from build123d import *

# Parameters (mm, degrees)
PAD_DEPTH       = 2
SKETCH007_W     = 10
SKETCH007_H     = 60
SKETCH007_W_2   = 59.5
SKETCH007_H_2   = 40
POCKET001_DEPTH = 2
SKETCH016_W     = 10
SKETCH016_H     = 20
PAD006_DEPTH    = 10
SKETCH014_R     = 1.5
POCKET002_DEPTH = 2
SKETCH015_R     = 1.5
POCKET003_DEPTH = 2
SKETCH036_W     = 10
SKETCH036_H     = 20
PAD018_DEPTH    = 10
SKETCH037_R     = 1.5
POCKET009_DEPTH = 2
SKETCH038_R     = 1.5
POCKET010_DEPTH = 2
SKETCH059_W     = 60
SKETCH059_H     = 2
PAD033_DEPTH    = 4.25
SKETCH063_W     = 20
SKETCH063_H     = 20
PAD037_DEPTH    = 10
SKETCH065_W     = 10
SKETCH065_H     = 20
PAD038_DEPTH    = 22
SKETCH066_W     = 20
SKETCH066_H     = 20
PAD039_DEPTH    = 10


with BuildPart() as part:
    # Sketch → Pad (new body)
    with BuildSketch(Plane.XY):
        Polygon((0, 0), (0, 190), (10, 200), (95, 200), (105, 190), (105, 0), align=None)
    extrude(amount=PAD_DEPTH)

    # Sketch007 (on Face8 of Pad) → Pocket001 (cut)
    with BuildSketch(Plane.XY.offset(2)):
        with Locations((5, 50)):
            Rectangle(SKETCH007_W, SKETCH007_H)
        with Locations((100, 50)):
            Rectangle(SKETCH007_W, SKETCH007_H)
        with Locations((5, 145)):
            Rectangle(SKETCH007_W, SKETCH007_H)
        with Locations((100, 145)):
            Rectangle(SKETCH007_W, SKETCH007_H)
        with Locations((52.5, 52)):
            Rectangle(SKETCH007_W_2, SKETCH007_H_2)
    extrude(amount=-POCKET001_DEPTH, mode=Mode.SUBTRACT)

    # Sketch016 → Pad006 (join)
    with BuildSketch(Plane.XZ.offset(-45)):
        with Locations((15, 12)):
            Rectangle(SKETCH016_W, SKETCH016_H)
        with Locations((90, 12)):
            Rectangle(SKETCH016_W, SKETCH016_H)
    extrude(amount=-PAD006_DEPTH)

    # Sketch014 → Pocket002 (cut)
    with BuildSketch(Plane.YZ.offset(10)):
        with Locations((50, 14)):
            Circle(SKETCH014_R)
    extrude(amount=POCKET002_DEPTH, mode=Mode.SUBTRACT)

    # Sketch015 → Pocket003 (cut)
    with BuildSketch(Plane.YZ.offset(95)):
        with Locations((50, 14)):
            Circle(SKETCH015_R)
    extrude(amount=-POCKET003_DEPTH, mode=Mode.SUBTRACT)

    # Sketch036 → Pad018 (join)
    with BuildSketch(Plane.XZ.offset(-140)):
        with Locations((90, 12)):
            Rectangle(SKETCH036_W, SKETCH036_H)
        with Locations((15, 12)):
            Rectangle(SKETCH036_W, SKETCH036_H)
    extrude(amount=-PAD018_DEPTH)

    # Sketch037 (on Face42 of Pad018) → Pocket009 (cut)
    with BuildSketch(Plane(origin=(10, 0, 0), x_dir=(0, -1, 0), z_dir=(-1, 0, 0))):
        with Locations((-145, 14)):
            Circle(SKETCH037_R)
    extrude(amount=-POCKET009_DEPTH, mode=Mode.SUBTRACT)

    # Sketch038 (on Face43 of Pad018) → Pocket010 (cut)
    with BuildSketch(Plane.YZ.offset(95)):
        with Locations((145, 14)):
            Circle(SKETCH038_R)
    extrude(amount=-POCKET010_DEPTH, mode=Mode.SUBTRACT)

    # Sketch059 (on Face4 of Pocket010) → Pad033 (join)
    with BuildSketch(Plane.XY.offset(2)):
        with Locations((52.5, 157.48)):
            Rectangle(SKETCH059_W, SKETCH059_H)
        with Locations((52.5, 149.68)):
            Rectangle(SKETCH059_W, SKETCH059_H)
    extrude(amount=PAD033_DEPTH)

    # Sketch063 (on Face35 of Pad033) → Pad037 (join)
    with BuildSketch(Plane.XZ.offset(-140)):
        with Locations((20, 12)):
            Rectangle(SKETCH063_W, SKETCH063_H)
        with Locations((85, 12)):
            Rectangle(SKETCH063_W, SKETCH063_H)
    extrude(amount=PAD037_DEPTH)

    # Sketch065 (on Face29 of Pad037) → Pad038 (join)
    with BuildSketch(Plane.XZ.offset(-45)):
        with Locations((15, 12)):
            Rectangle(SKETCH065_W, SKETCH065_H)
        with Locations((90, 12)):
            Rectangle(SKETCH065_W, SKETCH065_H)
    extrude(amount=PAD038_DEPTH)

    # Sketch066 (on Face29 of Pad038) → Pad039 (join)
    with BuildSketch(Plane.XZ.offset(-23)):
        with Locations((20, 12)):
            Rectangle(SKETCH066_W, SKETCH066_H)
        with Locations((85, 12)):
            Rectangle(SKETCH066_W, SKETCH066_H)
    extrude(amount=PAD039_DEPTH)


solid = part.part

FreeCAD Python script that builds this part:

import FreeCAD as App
import Part
import Sketcher

V = App.Vector


def add_polygon(sketch, points):
    """Adds a closed chain of lines whose ends are joined by coincident constraints."""
    first, n = sketch.GeometryCount, len(points)
    for a, b in zip(points, points[1:] + points[:1]):
        sketch.addGeometry(Part.LineSegment(App.Vector(*a, 0), App.Vector(*b, 0)), False)
    for i in range(n):
        sketch.addConstraint(Sketcher.Constraint("Coincident", first + i, 2, first + (i + 1) % n, 1))

doc = App.newDocument("Part")
body = doc.addObject("PartDesign::Body", "Body")

# Sketch on XY plane
sketch1 = body.newObject("Sketcher::SketchObject", "Sketch")
sketch1.AttachmentSupport = (doc.getObject("XY_Plane"), [""])
sketch1.MapMode = "FlatFace"
add_polygon(sketch1, [(0, 190), (0, 0), (105, 0), (105, 190), (95, 200), (10, 200)])  # lines 0-5
sketch1.addConstraint(Sketcher.Constraint("Vertical", 0))
sketch1.addConstraint(Sketcher.Constraint("Horizontal", 1))
sketch1.addConstraint(Sketcher.Constraint("Vertical", 2))
sketch1.addConstraint(Sketcher.Constraint("Horizontal", 4))
sketch1.addConstraint(Sketcher.Constraint("Coincident", 0, 2, -1, 1))
sketch1.addConstraint(Sketcher.Constraint("Perpendicular", 3, 5))
sketch1.addConstraint(Sketcher.Constraint("Horizontal", 2, 2, 5, 2))
sketch1.addConstraint(Sketcher.Constraint("Equal", 3, 5))
sketch1.addConstraint(Sketcher.Constraint("DistanceX", 1, 1, 1, 2, 105.0))
sketch1.addConstraint(Sketcher.Constraint("DistanceX", 4, 2, 4, 1, 85.0))
sketch1.addConstraint(Sketcher.Constraint("DistanceY", 0, 2, 0, 1, 190.0))
pad1 = body.newObject("PartDesign::Pad", "Pad")
pad1.Profile = sketch1
pad1.Length = 2

# Sketch on XY plane
sketch2 = body.newObject("Sketcher::SketchObject", "Sketch001")
sketch2.AttachmentSupport = (doc.getObject("XY_Plane"), [""])
sketch2.MapMode = "FlatFace"
sketch2.AttachmentOffset = App.Placement(V(0, 0, 2), App.Rotation())
add_polygon(sketch2, [(0, 80), (0, 20), (10, 20), (10, 80)])  # lines 0-3
add_polygon(sketch2, [(95, 80), (95, 20), (105, 20), (105, 80)])  # lines 4-7
add_polygon(sketch2, [(0, 175), (0, 115), (10, 115), (10, 175)])  # lines 8-11
add_polygon(sketch2, [(95, 175), (95, 115), (105, 115), (105, 175)])  # lines 12-15
add_polygon(sketch2, [(23, 72), (23, 32), (82, 32), (82, 72)])  # lines 16-19
sketch2.addConstraint(Sketcher.Constraint("Vertical", 0))
sketch2.addConstraint(Sketcher.Constraint("Horizontal", 1))
sketch2.addConstraint(Sketcher.Constraint("Vertical", 2))
sketch2.addConstraint(Sketcher.Constraint("Horizontal", 3))
sketch2.addConstraint(Sketcher.Constraint("Vertical", 4))
sketch2.addConstraint(Sketcher.Constraint("Horizontal", 5))
sketch2.addConstraint(Sketcher.Constraint("Vertical", 6))
sketch2.addConstraint(Sketcher.Constraint("Horizontal", 7))
sketch2.addConstraint(Sketcher.Constraint("Vertical", 8))
sketch2.addConstraint(Sketcher.Constraint("Horizontal", 9))
sketch2.addConstraint(Sketcher.Constraint("Vertical", 10))
sketch2.addConstraint(Sketcher.Constraint("Horizontal", 11))
sketch2.addConstraint(Sketcher.Constraint("Vertical", 12))
sketch2.addConstraint(Sketcher.Constraint("Horizontal", 13))
sketch2.addConstraint(Sketcher.Constraint("Vertical", 14))
sketch2.addConstraint(Sketcher.Constraint("Horizontal", 15))
sketch2.addConstraint(Sketcher.Constraint("Vertical", 16))
sketch2.addConstraint(Sketcher.Constraint("Horizontal", 17))
sketch2.addConstraint(Sketcher.Constraint("Vertical", 18))
sketch2.addConstraint(Sketcher.Constraint("Horizontal", 19))
sketch2.addConstraint(Sketcher.Constraint("PointOnObject", 0, 2, -2))
sketch2.addConstraint(Sketcher.Constraint("PointOnObject", 8, 2, -2))
sketch2.addConstraint(Sketcher.Constraint("Horizontal", 1, 2, 4, 2))
sketch2.addConstraint(Sketcher.Constraint("Horizontal", 3, 2, 6, 2))
sketch2.addConstraint(Sketcher.Constraint("Horizontal", 9, 2, 12, 2))
sketch2.addConstraint(Sketcher.Constraint("Horizontal", 11, 2, 14, 2))
sketch2.addConstraint(Sketcher.Constraint("Vertical", 2, 2, 9, 2))
sketch2.addConstraint(Sketcher.Constraint("Vertical", 7, 2, 12, 2))
sketch2.addConstraint(Sketcher.Constraint("Vertical", 6, 2, 13, 2))
sketch2.addConstraint(Sketcher.Constraint("Equal", 3, 5))
sketch2.addConstraint(Sketcher.Constraint("Equal", 6, 8))
sketch2.addConstraint(Sketcher.Constraint("DistanceX", 1, 1, 1, 2, 10.0))
sketch2.addConstraint(Sketcher.Constraint("DistanceY", 0, 2, 0, 1, 60.0))
sketch2.addConstraint(Sketcher.Constraint("DistanceY", 16, 2, 16, 1, 40.0))
sketch2.addConstraint(Sketcher.Constraint("DistanceX", 17, 1, 17, 2, 59.5))
sketch2.addConstraint(Sketcher.Constraint("DistanceY", -1, 1, 0, 2, 20.0))
sketch2.addConstraint(Sketcher.Constraint("DistanceX", -1, 1, 4, 2, 95.0))
sketch2.addConstraint(Sketcher.Constraint("DistanceY", -1, 1, 8, 2, 115.0))
sketch2.addConstraint(Sketcher.Constraint("DistanceY", -1, 1, 16, 2, 32.0))
sketch2.addConstraint(Sketcher.Constraint("DistanceX", -1, 1, 16, 2, 22.75))
pocket1 = body.newObject("PartDesign::Pocket", "Pocket")
pocket1.Profile = sketch2
pocket1.Length = 2

# Sketch on XZ plane
sketch3 = body.newObject("Sketcher::SketchObject", "Sketch002")
sketch3.AttachmentSupport = (doc.getObject("XZ_Plane"), [""])
sketch3.MapMode = "FlatFace"
sketch3.AttachmentOffset = App.Placement(V(0, 0, -45), App.Rotation())
add_polygon(sketch3, [(10, 22), (10, 2), (20, 2), (20, 22)])  # lines 0-3
add_polygon(sketch3, [(85, 22), (85, 2), (95, 2), (95, 22)])  # lines 4-7
sketch3.addConstraint(Sketcher.Constraint("Vertical", 0))
sketch3.addConstraint(Sketcher.Constraint("Horizontal", 1))
sketch3.addConstraint(Sketcher.Constraint("Vertical", 2))
sketch3.addConstraint(Sketcher.Constraint("Horizontal", 3))
sketch3.addConstraint(Sketcher.Constraint("Vertical", 4))
sketch3.addConstraint(Sketcher.Constraint("Horizontal", 5))
sketch3.addConstraint(Sketcher.Constraint("Vertical", 6))
sketch3.addConstraint(Sketcher.Constraint("Horizontal", 7))
sketch3.addConstraint(Sketcher.Constraint("Horizontal", 1, 2, 4, 2))
sketch3.addConstraint(Sketcher.Constraint("Horizontal", 3, 2, 6, 2))
sketch3.addConstraint(Sketcher.Constraint("Equal", 3, 5))
sketch3.addConstraint(Sketcher.Constraint("DistanceX", 1, 1, 1, 2, 10.0))
sketch3.addConstraint(Sketcher.Constraint("DistanceY", 0, 2, 0, 1, 20.0))
sketch3.addConstraint(Sketcher.Constraint("DistanceX", -1, 1, 0, 2, 10.0))
sketch3.addConstraint(Sketcher.Constraint("DistanceY", -1, 1, 0, 2, 2.0))
sketch3.addConstraint(Sketcher.Constraint("DistanceX", -1, 1, 4, 2, 85.0))
pad2 = body.newObject("PartDesign::Pad", "Pad001")
pad2.Profile = sketch3
pad2.Length = 10
pad2.Reversed = True

# Sketch on YZ plane
sketch4 = body.newObject("Sketcher::SketchObject", "Sketch003")
sketch4.AttachmentSupport = (doc.getObject("YZ_Plane"), [""])
sketch4.MapMode = "FlatFace"
sketch4.AttachmentOffset = App.Placement(V(0, 0, 10), App.Rotation())
sketch4.addGeometry(Part.Circle(V(50, 14, 0), V(0, 0, 1), 1.5), False)
sketch4.addConstraint(Sketcher.Constraint("Diameter", 0, 3.0))
sketch4.addConstraint(Sketcher.Constraint("DistanceX", -1, 1, 0, 3, 50.0))
sketch4.addConstraint(Sketcher.Constraint("DistanceY", -1, 1, 0, 3, 14.0))
pocket2 = body.newObject("PartDesign::Pocket", "Pocket001")
pocket2.Profile = sketch4
pocket2.Length = 2
pocket2.Reversed = True

# Sketch on YZ plane
sketch5 = body.newObject("Sketcher::SketchObject", "Sketch004")
sketch5.AttachmentSupport = (doc.getObject("YZ_Plane"), [""])
sketch5.MapMode = "FlatFace"
sketch5.AttachmentOffset = App.Placement(V(0, 0, 95), App.Rotation())
sketch5.addGeometry(Part.Circle(V(50, 14, 0), V(0, 0, 1), 1.5), False)
sketch5.addConstraint(Sketcher.Constraint("Diameter", 0, 3.0))
sketch5.addConstraint(Sketcher.Constraint("DistanceX", -1, 1, 0, 3, 50.0))
sketch5.addConstraint(Sketcher.Constraint("DistanceY", -1, 1, 0, 3, 14.0))
pocket3 = body.newObject("PartDesign::Pocket", "Pocket002")
pocket3.Profile = sketch5
pocket3.Length = 2

# Sketch on XZ plane
sketch6 = body.newObject("Sketcher::SketchObject", "Sketch005")
sketch6.AttachmentSupport = (doc.getObject("XZ_Plane"), [""])
sketch6.MapMode = "FlatFace"
sketch6.AttachmentOffset = App.Placement(V(0, 0, -140), App.Rotation())
add_polygon(sketch6, [(85, 22), (85, 2), (95, 2), (95, 22)])  # lines 0-3
add_polygon(sketch6, [(10, 22), (10, 2), (20, 2), (20, 22)])  # lines 4-7
sketch6.addConstraint(Sketcher.Constraint("Vertical", 0))
sketch6.addConstraint(Sketcher.Constraint("Horizontal", 1))
sketch6.addConstraint(Sketcher.Constraint("Vertical", 2))
sketch6.addConstraint(Sketcher.Constraint("Horizontal", 3))
sketch6.addConstraint(Sketcher.Constraint("Vertical", 4))
sketch6.addConstraint(Sketcher.Constraint("Horizontal", 5))
sketch6.addConstraint(Sketcher.Constraint("Vertical", 6))
sketch6.addConstraint(Sketcher.Constraint("Horizontal", 7))
sketch6.addConstraint(Sketcher.Constraint("Horizontal", 1, 2, 4, 2))
sketch6.addConstraint(Sketcher.Constraint("Horizontal", 3, 2, 6, 2))
sketch6.addConstraint(Sketcher.Constraint("Equal", 3, 5))
sketch6.addConstraint(Sketcher.Constraint("DistanceX", 1, 1, 1, 2, 10.0))
sketch6.addConstraint(Sketcher.Constraint("DistanceY", 0, 2, 0, 1, 20.0))
sketch6.addConstraint(Sketcher.Constraint("DistanceX", -1, 1, 0, 2, 85.0))
sketch6.addConstraint(Sketcher.Constraint("DistanceY", -1, 1, 0, 2, 2.0))
sketch6.addConstraint(Sketcher.Constraint("DistanceX", -1, 1, 4, 2, 10.0))
pad3 = body.newObject("PartDesign::Pad", "Pad002")
pad3.Profile = sketch6
pad3.Length = 10
pad3.Reversed = True

# Sketch on YZ plane
sketch7 = body.newObject("Sketcher::SketchObject", "Sketch006")
sketch7.AttachmentSupport = (doc.getObject("YZ_Plane"), [""])
sketch7.MapMode = "FlatFace"
sketch7.AttachmentOffset = App.Placement(V(0, 0, 10), App.Rotation())
sketch7.addGeometry(Part.Circle(V(145, 14, 0), V(0, 0, 1), 1.5), False)
sketch7.addConstraint(Sketcher.Constraint("Diameter", 0, 3.0))
sketch7.addConstraint(Sketcher.Constraint("DistanceX", -1, 1, 0, 3, 145.0))
sketch7.addConstraint(Sketcher.Constraint("DistanceY", -1, 1, 0, 3, 14.0))
pocket4 = body.newObject("PartDesign::Pocket", "Pocket003")
pocket4.Profile = sketch7
pocket4.Length = 2
pocket4.Reversed = True

# Sketch on YZ plane
sketch8 = body.newObject("Sketcher::SketchObject", "Sketch007")
sketch8.AttachmentSupport = (doc.getObject("YZ_Plane"), [""])
sketch8.MapMode = "FlatFace"
sketch8.AttachmentOffset = App.Placement(V(0, 0, 95), App.Rotation())
sketch8.addGeometry(Part.Circle(V(145, 14, 0), V(0, 0, 1), 1.5), False)
sketch8.addConstraint(Sketcher.Constraint("Diameter", 0, 3.0))
sketch8.addConstraint(Sketcher.Constraint("DistanceX", -1, 1, 0, 3, 145.0))
sketch8.addConstraint(Sketcher.Constraint("DistanceY", -1, 1, 0, 3, 14.0))
pocket5 = body.newObject("PartDesign::Pocket", "Pocket004")
pocket5.Profile = sketch8
pocket5.Length = 2

# Sketch on XY plane
sketch9 = body.newObject("Sketcher::SketchObject", "Sketch008")
sketch9.AttachmentSupport = (doc.getObject("XY_Plane"), [""])
sketch9.MapMode = "FlatFace"
sketch9.AttachmentOffset = App.Placement(V(0, 0, 2), App.Rotation())
add_polygon(sketch9, [(22.5, 158.5), (22.5, 156.5), (82.5, 156.5), (82.5, 158.5)])  # lines 0-3
add_polygon(sketch9, [(22.5, 150.7), (22.5, 148.7), (82.5, 148.7), (82.5, 150.7)])  # lines 4-7
sketch9.addConstraint(Sketcher.Constraint("Vertical", 0))
sketch9.addConstraint(Sketcher.Constraint("Horizontal", 1))
sketch9.addConstraint(Sketcher.Constraint("Vertical", 2))
sketch9.addConstraint(Sketcher.Constraint("Horizontal", 3))
sketch9.addConstraint(Sketcher.Constraint("Vertical", 4))
sketch9.addConstraint(Sketcher.Constraint("Horizontal", 5))
sketch9.addConstraint(Sketcher.Constraint("Vertical", 6))
sketch9.addConstraint(Sketcher.Constraint("Horizontal", 7))
sketch9.addConstraint(Sketcher.Constraint("Vertical", 3, 2, 4, 2))
sketch9.addConstraint(Sketcher.Constraint("Vertical", 2, 2, 5, 2))
sketch9.addConstraint(Sketcher.Constraint("Equal", 2, 4))
sketch9.addConstraint(Sketcher.Constraint("DistanceX", 1, 1, 1, 2, 60.0))
sketch9.addConstraint(Sketcher.Constraint("DistanceY", 0, 2, 0, 1, 2.0))
sketch9.addConstraint(Sketcher.Constraint("DistanceX", -1, 1, 0, 2, 22.5))
sketch9.addConstraint(Sketcher.Constraint("DistanceY", 4, 2, 0, 2, 7.8))
sketch9.addConstraint(Sketcher.Constraint("DistanceY", -1, 1, 0, 2, 156.48))
pad4 = body.newObject("PartDesign::Pad", "Pad003")
pad4.Profile = sketch9
pad4.Length = 4.25

# Sketch on XZ plane
sketch10 = body.newObject("Sketcher::SketchObject", "Sketch009")
sketch10.AttachmentSupport = (doc.getObject("XZ_Plane"), [""])
sketch10.MapMode = "FlatFace"
sketch10.AttachmentOffset = App.Placement(V(0, 0, -140), App.Rotation())
add_polygon(sketch10, [(10, 22), (10, 2), (30, 2), (30, 22)])  # lines 0-3
add_polygon(sketch10, [(75, 22), (75, 2), (95, 2), (95, 22)])  # lines 4-7
sketch10.addConstraint(Sketcher.Constraint("Vertical", 0))
sketch10.addConstraint(Sketcher.Constraint("Horizontal", 1))
sketch10.addConstraint(Sketcher.Constraint("Vertical", 2))
sketch10.addConstraint(Sketcher.Constraint("Horizontal", 3))
sketch10.addConstraint(Sketcher.Constraint("Vertical", 4))
sketch10.addConstraint(Sketcher.Constraint("Horizontal", 5))
sketch10.addConstraint(Sketcher.Constraint("Vertical", 6))
sketch10.addConstraint(Sketcher.Constraint("Horizontal", 7))
sketch10.addConstraint(Sketcher.Constraint("Horizontal", 1, 2, 4, 2))
sketch10.addConstraint(Sketcher.Constraint("Horizontal", 3, 2, 6, 2))
sketch10.addConstraint(Sketcher.Constraint("Equal", 3, 5))
sketch10.addConstraint(Sketcher.Constraint("Equal", 7, 0))
sketch10.addConstraint(Sketcher.Constraint("DistanceX", 1, 1, 1, 2, 20.0))
sketch10.addConstraint(Sketcher.Constraint("DistanceX", -1, 1, 0, 2, 10.0))
sketch10.addConstraint(Sketcher.Constraint("DistanceY", -1, 1, 0, 2, 2.0))
sketch10.addConstraint(Sketcher.Constraint("DistanceX", -1, 1, 4, 2, 75.0))
pad5 = body.newObject("PartDesign::Pad", "Pad004")
pad5.Profile = sketch10
pad5.Length = 10

# Sketch on XZ plane
sketch11 = body.newObject("Sketcher::SketchObject", "Sketch010")
sketch11.AttachmentSupport = (doc.getObject("XZ_Plane"), [""])
sketch11.MapMode = "FlatFace"
sketch11.AttachmentOffset = App.Placement(V(0, 0, -45), App.Rotation())
add_polygon(sketch11, [(10, 22), (10, 2), (20, 2), (20, 22)])  # lines 0-3
add_polygon(sketch11, [(85, 22), (85, 2), (95, 2), (95, 22)])  # lines 4-7
sketch11.addConstraint(Sketcher.Constraint("Vertical", 0))
sketch11.addConstraint(Sketcher.Constraint("Horizontal", 1))
sketch11.addConstraint(Sketcher.Constraint("Vertical", 2))
sketch11.addConstraint(Sketcher.Constraint("Horizontal", 3))
sketch11.addConstraint(Sketcher.Constraint("Vertical", 4))
sketch11.addConstraint(Sketcher.Constraint("Horizontal", 5))
sketch11.addConstraint(Sketcher.Constraint("Vertical", 6))
sketch11.addConstraint(Sketcher.Constraint("Horizontal", 7))
sketch11.addConstraint(Sketcher.Constraint("Horizontal", 1, 2, 4, 2))
sketch11.addConstraint(Sketcher.Constraint("Horizontal", 3, 2, 6, 2))
sketch11.addConstraint(Sketcher.Constraint("Equal", 3, 5))
sketch11.addConstraint(Sketcher.Constraint("DistanceX", 1, 1, 1, 2, 10.0))
sketch11.addConstraint(Sketcher.Constraint("DistanceY", 0, 2, 0, 1, 20.0))
sketch11.addConstraint(Sketcher.Constraint("DistanceX", -1, 1, 0, 2, 10.0))
sketch11.addConstraint(Sketcher.Constraint("DistanceY", -1, 1, 0, 2, 2.0))
sketch11.addConstraint(Sketcher.Constraint("DistanceX", -1, 1, 4, 2, 85.0))
pad6 = body.newObject("PartDesign::Pad", "Pad005")
pad6.Profile = sketch11
pad6.Length = 22

# Sketch on XZ plane
sketch12 = body.newObject("Sketcher::SketchObject", "Sketch011")
sketch12.AttachmentSupport = (doc.getObject("XZ_Plane"), [""])
sketch12.MapMode = "FlatFace"
sketch12.AttachmentOffset = App.Placement(V(0, 0, -23), App.Rotation())
add_polygon(sketch12, [(10, 22), (10, 2), (30, 2), (30, 22)])  # lines 0-3
add_polygon(sketch12, [(75, 22), (75, 2), (95, 2), (95, 22)])  # lines 4-7
sketch12.addConstraint(Sketcher.Constraint("Vertical", 0))
sketch12.addConstraint(Sketcher.Constraint("Horizontal", 1))
sketch12.addConstraint(Sketcher.Constraint("Vertical", 2))
sketch12.addConstraint(Sketcher.Constraint("Horizontal", 3))
sketch12.addConstraint(Sketcher.Constraint("Vertical", 4))
sketch12.addConstraint(Sketcher.Constraint("Horizontal", 5))
sketch12.addConstraint(Sketcher.Constraint("Vertical", 6))
sketch12.addConstraint(Sketcher.Constraint("Horizontal", 7))
sketch12.addConstraint(Sketcher.Constraint("Horizontal", 1, 2, 4, 2))
sketch12.addConstraint(Sketcher.Constraint("Horizontal", 3, 2, 6, 2))
sketch12.addConstraint(Sketcher.Constraint("Equal", 3, 5))
sketch12.addConstraint(Sketcher.Constraint("Equal", 7, 0))
sketch12.addConstraint(Sketcher.Constraint("DistanceX", 1, 1, 1, 2, 20.0))
sketch12.addConstraint(Sketcher.Constraint("DistanceX", -1, 1, 0, 2, 10.0))
sketch12.addConstraint(Sketcher.Constraint("DistanceY", -1, 1, 0, 2, 2.0))
sketch12.addConstraint(Sketcher.Constraint("DistanceX", -1, 1, 4, 2, 75.0))
pad7 = body.newObject("PartDesign::Pad", "Pad006")
pad7.Profile = sketch12
pad7.Length = 10

doc.recompute()
